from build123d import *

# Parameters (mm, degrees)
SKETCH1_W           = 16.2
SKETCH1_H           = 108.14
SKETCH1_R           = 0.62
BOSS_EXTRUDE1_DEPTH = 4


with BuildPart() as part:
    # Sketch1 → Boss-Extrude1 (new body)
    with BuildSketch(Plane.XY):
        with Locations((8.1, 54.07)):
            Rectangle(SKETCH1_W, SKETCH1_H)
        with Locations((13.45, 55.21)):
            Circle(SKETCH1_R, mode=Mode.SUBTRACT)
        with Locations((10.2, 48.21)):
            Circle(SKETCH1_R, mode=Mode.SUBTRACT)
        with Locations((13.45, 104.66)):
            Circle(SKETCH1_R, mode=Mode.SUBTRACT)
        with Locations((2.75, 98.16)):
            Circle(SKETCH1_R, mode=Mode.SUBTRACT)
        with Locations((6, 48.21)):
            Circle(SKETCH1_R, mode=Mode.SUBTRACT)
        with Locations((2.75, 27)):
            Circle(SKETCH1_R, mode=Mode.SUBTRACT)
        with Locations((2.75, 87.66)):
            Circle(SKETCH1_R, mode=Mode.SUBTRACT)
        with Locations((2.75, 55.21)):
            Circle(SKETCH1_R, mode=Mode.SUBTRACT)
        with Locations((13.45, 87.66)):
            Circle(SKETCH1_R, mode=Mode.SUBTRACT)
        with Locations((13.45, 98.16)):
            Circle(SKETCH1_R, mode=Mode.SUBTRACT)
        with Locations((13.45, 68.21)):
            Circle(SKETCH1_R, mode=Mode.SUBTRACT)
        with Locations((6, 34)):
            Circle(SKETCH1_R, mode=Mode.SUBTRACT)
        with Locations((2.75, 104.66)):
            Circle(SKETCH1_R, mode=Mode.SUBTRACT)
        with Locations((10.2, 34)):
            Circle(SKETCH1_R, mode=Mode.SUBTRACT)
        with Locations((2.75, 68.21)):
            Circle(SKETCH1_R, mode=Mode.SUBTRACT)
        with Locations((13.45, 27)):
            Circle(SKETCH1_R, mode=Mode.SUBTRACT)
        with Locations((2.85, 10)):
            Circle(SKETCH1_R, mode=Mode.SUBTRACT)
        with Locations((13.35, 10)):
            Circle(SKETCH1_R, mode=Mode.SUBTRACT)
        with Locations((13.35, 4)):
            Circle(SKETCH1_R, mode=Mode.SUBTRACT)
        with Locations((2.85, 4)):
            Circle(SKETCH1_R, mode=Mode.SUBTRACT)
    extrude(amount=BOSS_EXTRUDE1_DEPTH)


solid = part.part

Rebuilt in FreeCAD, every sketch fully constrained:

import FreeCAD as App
import Part
import Sketcher


def add_polygon(sketch, points):
    """Adds a closed chain of lines whose ends are joined by coincident constraints."""
    first, n = sketch.GeometryCount, len(points)
    for a, b in zip(points, points[1:] + points[:1]):
        sketch.addGeometry(Part.LineSegment(App.Vector(*a, 0), App.Vector(*b, 0)), False)
    for i in range(n):
        sketch.addConstraint(Sketcher.Constraint("Coincident", first + i, 2, first + (i + 1) % n, 1))

doc = App.newDocument("Part")
body = doc.addObject("PartDesign::Body", "Body")

# Sketch on XY plane
sketch1 = body.newObject("Sketcher::SketchObject", "Sketch")
sketch1.AttachmentSupport = (doc.getObject("XY_Plane"), [""])
sketch1.MapMode = "FlatFace"
add_polygon(sketch1, [(0, 108.1), (0, 0), (16.2, 0), (16.2, 108.1)])  # lines 0-3
sketch1.addGeometry(Part.Circle(App.Vector(2.9, 4, 0), App.Vector(0, 0, 1), 0.6), False)  # 4
sketch1.addGeometry(Part.Circle(App.Vector(2.9, 10, 0), App.Vector(0, 0, 1), 0.6), False)  # 5
sketch1.addGeometry(Part.Circle(App.Vector(2.8, 27, 0), App.Vector(0, 0, 1), 0.6), False)  # 6
sketch1.addGeometry(Part.Circle(App.Vector(6, 34, 0), App.Vector(0, 0, 1), 0.6), False)  # 7
sketch1.addGeometry(Part.Circle(App.Vector(6, 48.2, 0), App.Vector(0, 0, 1), 0.6), False)  # 8
sketch1.addGeometry(Part.Circle(App.Vector(13.3, 4, 0), App.Vector(0, 0, 1), 0.6), False)  # 9
sketch1.addGeometry(Part.Circle(App.Vector(13.3, 10, 0), App.Vector(0, 0, 1), 0.6), False)  # 10
sketch1.addGeometry(Part.Circle(App.Vector(13.4, 27, 0), App.Vector(0, 0, 1), 0.6), False)  # 11
sketch1.addGeometry(Part.Circle(App.Vector(10.2, 34, 0), App.Vector(0, 0, 1), 0.6), False)  # 12
sketch1.addGeometry(Part.Circle(App.Vector(10.2, 48.2, 0), App.Vector(0, 0, 1), 0.6), False)  # 13
sketch1.addGeometry(Part.Circle(App.Vector(2.8, 55.2, 0), App.Vector(0, 0, 1), 0.6), False)  # 14
sketch1.addGeometry(Part.Circle(App.Vector(2.8, 68.2, 0), App.Vector(0, 0, 1), 0.6), False)  # 15
sketch1.addGeometry(Part.Circle(App.Vector(2.8, 87.7, 0), App.Vector(0, 0, 1), 0.6), False)  # 16
sketch1.addGeometry(Part.Circle(App.Vector(2.8, 98.2, 0), App.Vector(0, 0, 1), 0.6), False)  # 17
sketch1.addGeometry(Part.Circle(App.Vector(2.8, 104.7, 0), App.Vector(0, 0, 1), 0.6), False)  # 18
sketch1.addGeometry(Part.Circle(App.Vector(13.4, 55.2, 0), App.Vector(0, 0, 1), 0.6), False)  # 19
sketch1.addGeometry(Part.Circle(App.Vector(13.4, 68.2, 0), App.Vector(0, 0, 1), 0.6), False)  # 20
sketch1.addGeometry(Part.Circle(App.Vector(13.4, 87.7, 0), App.Vector(0, 0, 1), 0.6), False)  # 21
sketch1.addGeometry(Part.Circle(App.Vector(13.4, 98.2, 0), App.Vector(0, 0, 1), 0.6), False)  # 22
sketch1.addGeometry(Part.Circle(App.Vector(13.4, 104.7, 0), App.Vector(0, 0, 1), 0.6), False)  # 23
sketch1.addConstraint(Sketcher.Constraint("Vertical", 0))
sketch1.addConstraint(Sketcher.Constraint("Horizontal", 1))
sketch1.addConstraint(Sketcher.Constraint("Vertical", 2))
sketch1.addConstraint(Sketcher.Constraint("Horizontal", 3))
sketch1.addConstraint(Sketcher.Constraint("Coincident", 0, 2, -1, 1))
sketch1.addConstraint(Sketcher.Constraint("Equal", 4, 5))
sketch1.addConstraint(Sketcher.Constraint("Equal", 5, 6))
sketch1.addConstraint(Sketcher.Constraint("Equal", 6, 7))
sketch1.addConstraint(Sketcher.Constraint("Equal", 7, 8))
sketch1.addConstraint(Sketcher.Constraint("Equal", 8, 9))
sketch1.addConstraint(Sketcher.Constraint("Equal", 9, 10))
sketch1.addConstraint(Sketcher.Constraint("Equal", 10, 11))
sketch1.addConstraint(Sketcher.Constraint("Equal", 11, 12))
sketch1.addConstraint(Sketcher.Constraint("Equal", 12, 13))
sketch1.addConstraint(Sketcher.Constraint("Equal", 13, 14))
sketch1.addConstraint(Sketcher.Constraint("Equal", 14, 15))
sketch1.addConstraint(Sketcher.Constraint("Equal", 15, 16))
sketch1.addConstraint(Sketcher.Constraint("Equal", 16, 17))
sketch1.addConstraint(Sketcher.Constraint("Equal", 17, 18))
sketch1.addConstraint(Sketcher.Constraint("Equal", 18, 19))
sketch1.addConstraint(Sketcher.Constraint("Equal", 19, 20))
sketch1.addConstraint(Sketcher.Constraint("Equal", 20, 21))
sketch1.addConstraint(Sketcher.Constraint("Equal", 21, 22))
sketch1.addConstraint(Sketcher.Constraint("Equal", 22, 23))
sketch1.addConstraint(Sketcher.Constraint("Horizontal", 4, 3, 9, 3))
sketch1.addConstraint(Sketcher.Constraint("Horizontal", 5, 3, 10, 3))
sketch1.addConstraint(Sketcher.Constraint("Horizontal", 6, 3, 11, 3))
sketch1.addConstraint(Sketcher.Constraint("Horizontal", 7, 3, 12, 3))
sketch1.addConstraint(Sketcher.Constraint("Horizontal", 8, 3, 13, 3))
sketch1.addConstraint(Sketcher.Constraint("Horizontal", 14, 3, 19, 3))
sketch1.addConstraint(Sketcher.Constraint("Horizontal", 15, 3, 20, 3))
sketch1.addConstraint(Sketcher.Constraint("Horizontal", 16, 3, 21, 3))
sketch1.addConstraint(Sketcher.Constraint("Horizontal", 17, 3, 22, 3))
sketch1.addConstraint(Sketcher.Constraint("Horizontal", 18, 3, 23, 3))
sketch1.addConstraint(Sketcher.Constraint("Vertical", 4, 3, 5, 3))
sketch1.addConstraint(Sketcher.Constraint("Vertical", 7, 3, 8, 3))
sketch1.addConstraint(Sketcher.Constraint("Vertical", 9, 3, 10, 3))
sketch1.addConstraint(Sketcher.Constraint("Vertical", 12, 3, 13, 3))
sketch1.addConstraint(Sketcher.Constraint("Vertical", 6, 3, 14, 3))
sketch1.addConstraint(Sketcher.Constraint("Vertical", 14, 3, 15, 3))
sketch1.addConstraint(Sketcher.Constraint("Vertical", 15, 3, 16, 3))
sketch1.addConstraint(Sketcher.Constraint("Vertical", 16, 3, 17, 3))
sketch1.addConstraint(Sketcher.Constraint("Vertical", 17, 3, 18, 3))
sketch1.addConstraint(Sketcher.Constraint("Vertical", 11, 3, 19, 3))
sketch1.addConstraint(Sketcher.Constraint("Vertical", 19, 3, 20, 3))
sketch1.addConstraint(Sketcher.Constraint("Vertical", 20, 3, 21, 3))
sketch1.addConstraint(Sketcher.Constraint("Vertical", 21, 3, 22, 3))
sketch1.addConstraint(Sketcher.Constraint("Vertical", 22, 3, 23, 3))
sketch1.addConstraint(Sketcher.Constraint("Diameter", 4, 1.24))
sketch1.addConstraint(Sketcher.Constraint("DistanceX", 1, 1, 1, 2, 16.2))
sketch1.addConstraint(Sketcher.Constraint("DistanceY", -1, 1, 4, 3, 4.0))
sketch1.addConstraint(Sketcher.Constraint("DistanceY", -1, 1, 5, 3, 10.0))
sketch1.addConstraint(Sketcher.Constraint("DistanceY", -1, 1, 6, 3, 27.0))
sketch1.addConstraint(Sketcher.Constraint("DistanceX", -1, 1, 7, 3, 6.0))
sketch1.addConstraint(Sketcher.Constraint("DistanceY", -1, 1, 7, 3, 34.0))
sketch1.addConstraint(Sketcher.Constraint("DistanceY", 8, 3, 14, 3, 7.0))
sketch1.addConstraint(Sketcher.Constraint("DistanceY", 14, 3, 15, 3, 13.0))
sketch1.addConstraint(Sketcher.Constraint("DistanceY", 16, 3, 18, 3, 17.0))
sketch1.addConstraint(Sketcher.Constraint("DistanceY", 0, 2, 0, 1, 108.14))
sketch1.addConstraint(Sketcher.Constraint("DistanceX", -1, 1, 12, 3, 10.2))
sketch1.addConstraint(Sketcher.Constraint("DistanceX", 6, 3, 5, 3, 0.1))
sketch1.addConstraint(Sketcher.Constraint("DistanceX", 4, 3, 9, 3, 10.5))
sketch1.addConstraint(Sketcher.Constraint("DistanceX", 6, 3, 11, 3, 10.7))
sketch1.addConstraint(Sketcher.Constraint("DistanceY", 16, 3, 17, 3, 10.5))
sketch1.addConstraint(Sketcher.Constraint("DistanceX", -1, 1, 4, 3, 2.85))
sketch1.addConstraint(Sketcher.Constraint("DistanceY", -1, 1, 8, 3, 48.21))
sketch1.addConstraint(Sketcher.Constraint("DistanceY", -1, 1, 16, 3, 87.66))
pad1 = body.newObject("PartDesign::Pad", "Pad")
pad1.Profile = sketch1
pad1.Length = 4

doc.recompute()
